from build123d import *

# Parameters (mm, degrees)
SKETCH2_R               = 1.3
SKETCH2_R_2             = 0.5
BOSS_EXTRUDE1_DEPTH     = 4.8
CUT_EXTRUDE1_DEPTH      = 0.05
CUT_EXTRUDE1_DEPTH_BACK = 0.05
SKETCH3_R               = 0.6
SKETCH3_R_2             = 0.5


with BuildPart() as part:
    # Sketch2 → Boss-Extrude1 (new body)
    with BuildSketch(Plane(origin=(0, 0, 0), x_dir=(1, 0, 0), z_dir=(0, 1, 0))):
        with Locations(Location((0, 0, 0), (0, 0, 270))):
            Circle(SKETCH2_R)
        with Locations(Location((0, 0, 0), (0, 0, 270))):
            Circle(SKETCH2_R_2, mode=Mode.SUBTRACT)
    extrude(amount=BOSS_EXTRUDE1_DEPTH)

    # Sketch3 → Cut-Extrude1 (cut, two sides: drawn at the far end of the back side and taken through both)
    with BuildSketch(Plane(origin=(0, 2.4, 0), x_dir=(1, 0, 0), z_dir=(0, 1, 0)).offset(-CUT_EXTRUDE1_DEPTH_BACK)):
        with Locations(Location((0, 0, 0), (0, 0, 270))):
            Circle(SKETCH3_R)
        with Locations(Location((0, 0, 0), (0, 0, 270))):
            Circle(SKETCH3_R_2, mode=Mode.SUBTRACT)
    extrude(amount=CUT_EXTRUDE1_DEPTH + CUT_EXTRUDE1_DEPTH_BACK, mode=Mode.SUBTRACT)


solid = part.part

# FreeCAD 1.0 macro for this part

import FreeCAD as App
import Part
import Sketcher

V = App.Vector

doc = App.newDocument("Part")
params = doc.addObject("Spreadsheet::Sheet", "Params")
for row, (alias, value) in enumerate([
    ("sketch1_diameter", "1 mm"),
    ("sketch1_diameter2", "2.6 mm"),
    ("pad1_length", "4.8 mm"),
    ("sketch2_diameter", "1 mm"),
    ("sketch2_diameter2", "1.2 mm"),
    ("pocket1_length", "0.05 mm"),
    ("pocket1_length2", "0.05 mm"),
], start=1):
    params.set(f"A{row}", alias)
    params.set(f"B{row}", "=" + value)
    params.setAlias(f"B{row}", alias)

body = doc.addObject("PartDesign::Body", "Body")

# Sketch on XZ plane
sketch1 = body.newObject("Sketcher::SketchObject", "Sketch")
sketch1.AttachmentSupport = (doc.getObject("XZ_Plane"), [""])
sketch1.MapMode = "FlatFace"
sketch1.addGeometry([
    Part.Circle(V(0, 0, 0), V(0, 0, 1), 1.3),
    Part.Circle(V(0, 0, 0), V(0, 0, 1), 0.5),
], False)
sketch1.addConstraint([
    Sketcher.Constraint("Coincident", 0, 3, -1, 1),
    Sketcher.Constraint("Coincident", 1, 3, -1, 1),
    Sketcher.Constraint("Diameter", 1, 1.0),
    Sketcher.Constraint("Diameter", 0, 2.6),
])
sketch1.setExpression("Constraints[2]", "Params.sketch1_diameter")
sketch1.setExpression("Constraints[3]", "Params.sketch1_diameter2")
pad1 = body.newObject("PartDesign::Pad", "Pad")
pad1.Profile = sketch1
pad1.setExpression("Length", "Params.pad1_length")
pad1.Reversed = True

# Sketch on XZ plane
sketch2 = body.newObject("Sketcher::SketchObject", "Sketch001")
sketch2.AttachmentSupport = (doc.getObject("XZ_Plane"), [""])
sketch2.MapMode = "FlatFace"
sketch2.AttachmentOffset = App.Placement(V(0, 0, -2.4), App.Rotation())
sketch2.addGeometry([
    Part.Circle(V(0, 0, 0), V(0, 0, 1), 0.6),
    Part.Circle(V(0, 0, 0), V(0, 0, 1), 0.5),
], False)
sketch2.addConstraint([
    Sketcher.Constraint("Coincident", 0, 3, -1, 1),
    Sketcher.Constraint("Coincident", 1, 3, -1, 1),
    Sketcher.Constraint("Diameter", 1, 1.0),
    Sketcher.Constraint("Diameter", 0, 1.2),
])
sketch2.setExpression("Constraints[2]", "Params.sketch2_diameter")
sketch2.setExpression("Constraints[3]", "Params.sketch2_diameter2")
pocket1 = body.newObject("PartDesign::Pocket", "Pocket")
pocket1.Profile = sketch2
pocket1.Type = "TwoLengths"
pocket1.setExpression("Length", "Params.pocket1_length")
pocket1.setExpression("Length2", "Params.pocket1_length2")

doc.recompute()
